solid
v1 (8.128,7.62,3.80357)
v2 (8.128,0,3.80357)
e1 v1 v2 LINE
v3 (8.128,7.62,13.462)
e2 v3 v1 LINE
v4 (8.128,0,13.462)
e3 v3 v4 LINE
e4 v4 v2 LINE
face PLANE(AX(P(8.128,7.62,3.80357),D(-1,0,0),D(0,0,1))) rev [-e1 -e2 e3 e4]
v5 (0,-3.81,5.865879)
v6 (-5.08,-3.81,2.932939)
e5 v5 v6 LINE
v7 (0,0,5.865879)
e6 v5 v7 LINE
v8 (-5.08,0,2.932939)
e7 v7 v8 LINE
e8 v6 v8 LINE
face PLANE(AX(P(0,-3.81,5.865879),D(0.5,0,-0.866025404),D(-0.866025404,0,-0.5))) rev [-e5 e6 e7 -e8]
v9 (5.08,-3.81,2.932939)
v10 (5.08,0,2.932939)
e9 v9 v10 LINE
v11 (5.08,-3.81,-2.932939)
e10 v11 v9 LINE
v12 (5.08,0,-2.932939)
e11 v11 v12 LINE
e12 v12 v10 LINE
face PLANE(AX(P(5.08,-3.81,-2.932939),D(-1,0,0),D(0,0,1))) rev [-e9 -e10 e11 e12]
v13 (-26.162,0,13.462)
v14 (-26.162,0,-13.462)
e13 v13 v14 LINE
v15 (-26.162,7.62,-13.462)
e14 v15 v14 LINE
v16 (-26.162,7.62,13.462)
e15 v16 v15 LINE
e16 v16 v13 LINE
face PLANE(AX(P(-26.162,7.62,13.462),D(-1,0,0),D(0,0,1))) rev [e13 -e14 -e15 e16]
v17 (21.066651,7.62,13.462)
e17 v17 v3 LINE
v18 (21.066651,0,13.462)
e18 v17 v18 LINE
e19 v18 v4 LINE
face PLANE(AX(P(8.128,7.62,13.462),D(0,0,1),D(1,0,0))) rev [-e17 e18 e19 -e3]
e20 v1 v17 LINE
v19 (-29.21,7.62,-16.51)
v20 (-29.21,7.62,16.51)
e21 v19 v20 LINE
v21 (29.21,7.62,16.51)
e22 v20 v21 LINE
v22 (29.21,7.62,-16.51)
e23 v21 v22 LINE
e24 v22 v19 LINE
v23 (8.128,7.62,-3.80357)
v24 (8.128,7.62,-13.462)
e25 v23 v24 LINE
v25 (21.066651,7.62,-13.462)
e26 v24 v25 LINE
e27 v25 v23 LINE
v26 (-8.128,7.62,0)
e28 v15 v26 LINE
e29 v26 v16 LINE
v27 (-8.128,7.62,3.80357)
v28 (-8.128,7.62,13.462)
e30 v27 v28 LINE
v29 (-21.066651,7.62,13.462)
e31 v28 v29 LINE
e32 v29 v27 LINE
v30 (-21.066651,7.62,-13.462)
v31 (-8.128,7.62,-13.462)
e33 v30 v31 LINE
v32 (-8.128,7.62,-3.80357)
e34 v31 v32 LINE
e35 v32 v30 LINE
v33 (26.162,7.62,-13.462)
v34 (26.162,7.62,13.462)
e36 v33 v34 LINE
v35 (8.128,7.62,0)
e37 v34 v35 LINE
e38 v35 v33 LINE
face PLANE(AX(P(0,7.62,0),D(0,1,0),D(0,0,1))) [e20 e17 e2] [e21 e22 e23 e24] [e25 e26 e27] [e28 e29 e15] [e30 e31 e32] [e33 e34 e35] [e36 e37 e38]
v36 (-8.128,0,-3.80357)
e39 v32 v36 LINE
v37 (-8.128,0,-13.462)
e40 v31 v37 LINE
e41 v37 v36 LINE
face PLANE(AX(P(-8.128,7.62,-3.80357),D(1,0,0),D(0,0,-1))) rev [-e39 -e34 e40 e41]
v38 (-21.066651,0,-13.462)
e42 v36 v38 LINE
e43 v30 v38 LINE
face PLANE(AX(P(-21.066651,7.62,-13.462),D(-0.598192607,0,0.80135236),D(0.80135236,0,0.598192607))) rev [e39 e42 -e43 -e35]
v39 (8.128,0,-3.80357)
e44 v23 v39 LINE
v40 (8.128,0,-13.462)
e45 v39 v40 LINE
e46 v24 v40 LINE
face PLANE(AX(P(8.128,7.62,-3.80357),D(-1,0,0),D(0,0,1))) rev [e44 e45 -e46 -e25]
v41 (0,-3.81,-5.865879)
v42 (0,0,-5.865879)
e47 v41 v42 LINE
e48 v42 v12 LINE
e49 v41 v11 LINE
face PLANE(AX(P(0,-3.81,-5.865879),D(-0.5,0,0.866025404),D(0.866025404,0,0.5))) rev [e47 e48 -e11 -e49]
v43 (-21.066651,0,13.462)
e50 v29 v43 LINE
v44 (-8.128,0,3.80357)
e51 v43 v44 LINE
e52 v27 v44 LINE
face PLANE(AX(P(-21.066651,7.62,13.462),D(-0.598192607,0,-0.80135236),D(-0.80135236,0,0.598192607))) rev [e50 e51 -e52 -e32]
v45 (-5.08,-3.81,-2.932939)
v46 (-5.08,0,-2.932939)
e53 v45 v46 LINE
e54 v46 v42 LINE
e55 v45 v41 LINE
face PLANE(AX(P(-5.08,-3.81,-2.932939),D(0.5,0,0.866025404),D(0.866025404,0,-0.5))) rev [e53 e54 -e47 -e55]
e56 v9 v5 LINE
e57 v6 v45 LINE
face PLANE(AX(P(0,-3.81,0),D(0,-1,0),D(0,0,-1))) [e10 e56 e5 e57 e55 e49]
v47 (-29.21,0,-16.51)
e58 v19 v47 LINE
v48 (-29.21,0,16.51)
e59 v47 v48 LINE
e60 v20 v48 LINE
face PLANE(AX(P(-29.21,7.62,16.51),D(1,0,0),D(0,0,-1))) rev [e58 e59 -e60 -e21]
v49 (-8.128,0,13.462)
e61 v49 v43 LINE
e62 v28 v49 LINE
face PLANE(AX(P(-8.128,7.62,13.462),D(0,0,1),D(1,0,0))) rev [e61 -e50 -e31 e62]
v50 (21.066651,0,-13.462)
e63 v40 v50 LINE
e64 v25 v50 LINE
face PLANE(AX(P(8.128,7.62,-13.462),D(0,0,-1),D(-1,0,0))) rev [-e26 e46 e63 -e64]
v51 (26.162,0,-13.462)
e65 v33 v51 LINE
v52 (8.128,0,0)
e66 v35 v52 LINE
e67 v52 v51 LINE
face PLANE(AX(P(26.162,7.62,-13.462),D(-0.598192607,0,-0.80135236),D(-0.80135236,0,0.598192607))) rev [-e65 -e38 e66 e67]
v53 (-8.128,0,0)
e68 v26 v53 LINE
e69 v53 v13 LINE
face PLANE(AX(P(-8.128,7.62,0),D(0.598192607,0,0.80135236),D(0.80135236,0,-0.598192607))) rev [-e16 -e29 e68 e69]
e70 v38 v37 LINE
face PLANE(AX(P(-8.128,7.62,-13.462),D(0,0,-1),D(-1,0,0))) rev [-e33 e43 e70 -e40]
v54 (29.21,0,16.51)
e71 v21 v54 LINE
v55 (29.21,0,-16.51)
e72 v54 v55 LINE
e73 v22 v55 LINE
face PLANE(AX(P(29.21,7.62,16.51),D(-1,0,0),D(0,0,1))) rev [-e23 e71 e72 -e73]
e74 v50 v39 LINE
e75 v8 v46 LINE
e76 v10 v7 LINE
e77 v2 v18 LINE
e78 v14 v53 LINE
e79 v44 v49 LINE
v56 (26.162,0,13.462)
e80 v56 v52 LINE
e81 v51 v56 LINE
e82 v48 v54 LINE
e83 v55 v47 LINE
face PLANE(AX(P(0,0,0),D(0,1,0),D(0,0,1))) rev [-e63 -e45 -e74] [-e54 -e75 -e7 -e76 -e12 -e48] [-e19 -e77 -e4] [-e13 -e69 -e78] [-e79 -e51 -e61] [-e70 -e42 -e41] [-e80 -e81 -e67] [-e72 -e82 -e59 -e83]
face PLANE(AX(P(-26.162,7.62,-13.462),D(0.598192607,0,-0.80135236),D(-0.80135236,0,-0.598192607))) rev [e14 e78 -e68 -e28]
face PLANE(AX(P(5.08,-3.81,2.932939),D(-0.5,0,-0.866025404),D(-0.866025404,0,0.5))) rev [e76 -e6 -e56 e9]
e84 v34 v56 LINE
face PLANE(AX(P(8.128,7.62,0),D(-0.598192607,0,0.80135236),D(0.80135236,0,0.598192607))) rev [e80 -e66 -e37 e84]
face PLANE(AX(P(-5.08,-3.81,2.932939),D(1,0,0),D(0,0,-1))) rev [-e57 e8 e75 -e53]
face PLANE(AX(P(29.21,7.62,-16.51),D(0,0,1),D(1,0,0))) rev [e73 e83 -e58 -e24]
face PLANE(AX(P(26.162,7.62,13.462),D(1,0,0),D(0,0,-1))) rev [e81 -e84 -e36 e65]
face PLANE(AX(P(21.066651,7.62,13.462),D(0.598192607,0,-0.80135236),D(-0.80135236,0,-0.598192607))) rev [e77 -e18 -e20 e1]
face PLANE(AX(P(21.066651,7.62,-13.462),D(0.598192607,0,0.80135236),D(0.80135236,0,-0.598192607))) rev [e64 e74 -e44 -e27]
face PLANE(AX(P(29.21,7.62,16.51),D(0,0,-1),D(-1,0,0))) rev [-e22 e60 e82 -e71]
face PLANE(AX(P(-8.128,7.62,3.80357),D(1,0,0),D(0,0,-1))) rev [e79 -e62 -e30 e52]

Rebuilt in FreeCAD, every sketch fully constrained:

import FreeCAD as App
import Part
import Sketcher
Q = App.Units.Quantity


def add_polygon(sketch, points):
    """Adds a closed chain of lines whose ends are joined by coincident constraints."""
    first, n = sketch.GeometryCount, len(points)
    for a, b in zip(points, points[1:] + points[:1]):
        sketch.addGeometry(Part.LineSegment(App.Vector(*a, 0), App.Vector(*b, 0)), False)
    for i in range(n):
        sketch.addConstraint(Sketcher.Constraint("Coincident", first + i, 2, first + (i + 1) % n, 1))

doc = App.newDocument("Part")
body = doc.addObject("PartDesign::Body", "Body")

# Sketch on XZ plane
sketch1 = body.newObject("Sketcher::SketchObject", "Sketch")
sketch1.AttachmentSupport = (doc.getObject("XZ_Plane"), [""])
sketch1.MapMode = "FlatFace"
add_polygon(sketch1, [(-29, -17), (-29, 17), (29, 17), (29, -17)])  # lines 0-3
sketch1.addConstraint([
    Sketcher.Constraint("Vertical", 0),
    Sketcher.Constraint("Horizontal", 1),
    Sketcher.Constraint("Vertical", 2),
    Sketcher.Constraint("Horizontal", 3),
    Sketcher.Constraint("Symmetric", 0, 2, 2, 2, -1, 1),
    Sketcher.Constraint("DistanceX", 1, 1, 1, 2, Q("2.3 in")),
    Sketcher.Constraint("DistanceY", 0, 1, 0, 2, Q("1.3 in")),
])
pad1 = body.newObject("PartDesign::Pad", "Pad")
pad1.Profile = sketch1
pad1.Length = Q("0.3 in")
pad1.Reversed = True

# Sketch on XZ plane
sketch2 = body.newObject("Sketcher::SketchObject", "Sketch001")
sketch2.AttachmentSupport = (doc.getObject("XZ_Plane"), [""])
sketch2.MapMode = "FlatFace"
add_polygon(sketch2, [(5, -3), (5, 3), (0, 6), (-5, 3), (-5, -3), (0, -6)])  # lines 0-5
sketch2.addConstraint([
    Sketcher.Constraint("Vertical", 0),
    Sketcher.Constraint("Vertical", 3),
    Sketcher.Constraint("Symmetric", 0, 2, 3, 2, -1, 1),
    Sketcher.Constraint("Symmetric", 1, 2, 4, 2, -1, 1),
    Sketcher.Constraint("PointOnObject", 1, 2, -2),
    Sketcher.Constraint("Parallel", 2, 5),
    Sketcher.Constraint("Horizontal", 0, 2, 2, 2),
    Sketcher.Constraint("Angle", 1, Q("150 deg")),
    Sketcher.Constraint("DistanceX", -1, 1, 0, 2, Q("0.2 in")),
    Sketcher.Constraint("DistanceY", 0, 1, 0, 2, 5.865879),
])
pad2 = body.newObject("PartDesign::Pad", "Pad001")
pad2.Profile = sketch2
pad2.Length = Q("0.15 in")

# Sketch on XZ plane
sketch3 = body.newObject("Sketcher::SketchObject", "Sketch002")
sketch3.AttachmentSupport = (doc.getObject("XZ_Plane"), [""])
sketch3.MapMode = "FlatFace"
add_polygon(sketch3, [(-26, 13), (-26, -13), (-8, 0)])  # lines 0-2
add_polygon(sketch3, [(-8, 13), (-21, 13), (-8, 4)])  # lines 3-5
add_polygon(sketch3, [(-8, -4), (-21, -13), (-8, -13)])  # lines 6-8
add_polygon(sketch3, [(8, 4), (21, 13), (8, 13)])  # lines 9-11
add_polygon(sketch3, [(8, -13), (21, -13), (8, -4)])  # lines 12-14
add_polygon(sketch3, [(26, 13), (8, 0), (26, -13)])  # lines 15-17
sketch3.addConstraint([
    Sketcher.Constraint("Vertical", 0),
    Sketcher.Constraint("Horizontal", 3),
    Sketcher.Constraint("Vertical", 5),
    Sketcher.Constraint("Horizontal", 7),
    Sketcher.Constraint("Vertical", 8),
    Sketcher.Constraint("Horizontal", 10),
    Sketcher.Constraint("Vertical", 11),
    Sketcher.Constraint("Horizontal", 12),
    Sketcher.Constraint("Vertical", 14),
    Sketcher.Constraint("Vertical", 17),
    Sketcher.Constraint("Symmetric", 6, 2, 9, 2, -1, 1),
    Sketcher.Constraint("Symmetric", 8, 2, 11, 2, -1, 1),
    Sketcher.Constraint("Symmetric", 3, 2, 12, 2, -1, 1),
    Sketcher.Constraint("Symmetric", 4, 2, 13, 2, -1, 1),
    Sketcher.Constraint("Symmetric", 1, 2, 15, 2, -1, 1),
    Sketcher.Constraint("Symmetric", 2, 2, 16, 2, -1, 1),
    Sketcher.Constraint("Symmetric", 3, 2, 9, 2, -2),
    Sketcher.Constraint("Symmetric", 4, 2, 11, 2, -2),
    Sketcher.Constraint("PointOnObject", 1, 2, -1),
    Sketcher.Constraint("Parallel", 2, 4),
    Sketcher.Constraint("Parallel", 1, 6),
    Sketcher.Constraint("Parallel", 9, 15),
    Sketcher.Constraint("Horizontal", 2, 2, 3, 2),
    Sketcher.Constraint("Vertical", 1, 2, 4, 2),
    Sketcher.Constraint("DistanceY", 0, 2, 0, 1, Q("1.06 in")),
    Sketcher.Constraint("DistanceX", 0, 2, -1, 1, Q("1.03 in")),
    Sketcher.Constraint("DistanceX", 1, 2, -1, 1, Q("0.32 in")),
    Sketcher.Constraint("DistanceX", 3, 2, 3, 1, 12.938651),
])
pocket1 = body.newObject("PartDesign::Pocket", "Pocket")
pocket1.Profile = sketch3
pocket1.Type = "ThroughAll"

doc.recompute()
